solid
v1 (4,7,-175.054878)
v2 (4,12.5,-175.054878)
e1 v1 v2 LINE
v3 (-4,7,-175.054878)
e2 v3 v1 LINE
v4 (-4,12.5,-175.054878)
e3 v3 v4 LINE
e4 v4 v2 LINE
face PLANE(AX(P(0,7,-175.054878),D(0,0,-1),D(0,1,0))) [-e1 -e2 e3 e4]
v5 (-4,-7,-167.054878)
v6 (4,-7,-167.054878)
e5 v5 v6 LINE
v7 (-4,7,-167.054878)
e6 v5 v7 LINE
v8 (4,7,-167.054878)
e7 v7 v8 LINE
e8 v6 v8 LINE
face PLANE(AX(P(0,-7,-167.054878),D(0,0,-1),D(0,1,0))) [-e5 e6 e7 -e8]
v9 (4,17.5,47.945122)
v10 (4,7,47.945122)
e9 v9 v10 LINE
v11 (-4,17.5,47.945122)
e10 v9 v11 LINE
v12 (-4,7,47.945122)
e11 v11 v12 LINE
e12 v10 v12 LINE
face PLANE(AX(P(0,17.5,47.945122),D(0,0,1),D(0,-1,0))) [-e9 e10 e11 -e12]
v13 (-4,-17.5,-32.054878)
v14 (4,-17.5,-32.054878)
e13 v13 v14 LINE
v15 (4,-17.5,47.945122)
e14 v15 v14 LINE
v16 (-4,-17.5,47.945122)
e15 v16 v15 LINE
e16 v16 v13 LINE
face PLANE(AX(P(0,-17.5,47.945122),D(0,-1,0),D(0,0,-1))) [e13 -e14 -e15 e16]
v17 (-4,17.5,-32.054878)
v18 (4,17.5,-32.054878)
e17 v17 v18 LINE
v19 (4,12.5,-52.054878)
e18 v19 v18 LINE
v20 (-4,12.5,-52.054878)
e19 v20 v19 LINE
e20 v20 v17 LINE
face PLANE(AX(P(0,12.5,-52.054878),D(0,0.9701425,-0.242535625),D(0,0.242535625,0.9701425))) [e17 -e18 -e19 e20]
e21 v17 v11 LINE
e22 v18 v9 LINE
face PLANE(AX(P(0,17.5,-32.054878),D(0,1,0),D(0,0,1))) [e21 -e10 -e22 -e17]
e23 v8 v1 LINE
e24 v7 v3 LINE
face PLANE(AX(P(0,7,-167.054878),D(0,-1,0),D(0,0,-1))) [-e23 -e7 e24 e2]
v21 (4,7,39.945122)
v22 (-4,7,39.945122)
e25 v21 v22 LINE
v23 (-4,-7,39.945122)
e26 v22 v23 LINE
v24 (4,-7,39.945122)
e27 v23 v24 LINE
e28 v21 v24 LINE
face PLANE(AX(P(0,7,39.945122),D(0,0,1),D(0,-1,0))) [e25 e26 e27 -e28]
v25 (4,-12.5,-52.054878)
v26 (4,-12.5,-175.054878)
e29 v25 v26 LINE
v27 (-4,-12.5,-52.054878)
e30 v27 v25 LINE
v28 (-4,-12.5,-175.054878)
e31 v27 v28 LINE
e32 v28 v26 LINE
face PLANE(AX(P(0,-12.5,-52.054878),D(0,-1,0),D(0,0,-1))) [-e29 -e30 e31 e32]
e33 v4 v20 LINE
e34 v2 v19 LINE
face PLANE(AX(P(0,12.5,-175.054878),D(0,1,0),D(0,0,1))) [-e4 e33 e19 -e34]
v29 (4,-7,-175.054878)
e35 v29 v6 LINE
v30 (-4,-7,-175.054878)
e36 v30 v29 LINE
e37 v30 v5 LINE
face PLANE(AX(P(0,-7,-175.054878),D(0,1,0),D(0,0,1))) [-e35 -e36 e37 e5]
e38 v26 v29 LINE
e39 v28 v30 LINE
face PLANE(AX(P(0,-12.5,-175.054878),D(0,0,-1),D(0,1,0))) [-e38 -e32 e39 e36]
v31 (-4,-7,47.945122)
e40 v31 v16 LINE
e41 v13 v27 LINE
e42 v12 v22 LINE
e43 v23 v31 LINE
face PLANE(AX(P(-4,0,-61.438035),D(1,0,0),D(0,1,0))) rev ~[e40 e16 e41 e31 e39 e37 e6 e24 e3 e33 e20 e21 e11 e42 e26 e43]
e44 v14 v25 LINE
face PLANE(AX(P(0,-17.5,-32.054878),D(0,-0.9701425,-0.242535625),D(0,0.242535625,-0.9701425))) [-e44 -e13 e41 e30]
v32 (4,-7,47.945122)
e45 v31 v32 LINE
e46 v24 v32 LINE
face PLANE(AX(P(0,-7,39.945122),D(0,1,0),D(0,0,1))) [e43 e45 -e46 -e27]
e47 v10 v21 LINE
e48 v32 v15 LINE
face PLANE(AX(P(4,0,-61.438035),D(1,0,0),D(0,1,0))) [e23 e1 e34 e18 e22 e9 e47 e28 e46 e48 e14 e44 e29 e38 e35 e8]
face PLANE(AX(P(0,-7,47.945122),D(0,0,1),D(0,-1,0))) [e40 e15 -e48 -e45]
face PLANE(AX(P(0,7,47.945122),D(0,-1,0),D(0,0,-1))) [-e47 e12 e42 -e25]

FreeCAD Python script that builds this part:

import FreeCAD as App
import Part
import Sketcher

V = App.Vector


def add_polygon(sketch, points):
    """Adds a closed chain of lines whose ends are joined by coincident constraints."""
    first, n = sketch.GeometryCount, len(points)
    for a, b in zip(points, points[1:] + points[:1]):
        sketch.addGeometry(Part.LineSegment(App.Vector(*a, 0), App.Vector(*b, 0)), False)
    for i in range(n):
        sketch.addConstraint(Sketcher.Constraint("Coincident", first + i, 2, first + (i + 1) % n, 1))

doc = App.newDocument("Part")
params = doc.addObject("Spreadsheet::Sheet", "Params")
for row, (alias, value) in enumerate([
    ("sketch1_width", "14 mm"),
    ("sketch1_height", "8 mm"),
    ("sketch1_height2", "80 mm"),
    ("sketch1_height3", "123 mm"),
    ("sketch1_width2", "10.5 mm"),
    ("pad1_length", "8 mm"),
], start=1):
    params.set(f"A{row}", alias)
    params.set(f"B{row}", "=" + value)
    params.setAlias(f"B{row}", alias)

body = doc.addObject("PartDesign::Body", "Body")

# Sketch on YZ plane
sketch1 = body.newObject("Sketcher::SketchObject", "Sketch")
sketch1.AttachmentSupport = (doc.getObject("YZ_Plane"), [""])
sketch1.MapMode = "FlatFace"
add_polygon(sketch1, [(7, 40), (-7, 40), (-7, 48), (-18, 48), (-18, -32), (-12, -52), (-12, -175), (-7, -175), (-7, -167), (7, -167), (7, -175), (12, -175), (12, -52), (18, -32), (18, 48), (7, 48)])  # lines 0-15
sketch1.addConstraint([
    Sketcher.Constraint("Horizontal", 0),
    Sketcher.Constraint("Vertical", 1),
    Sketcher.Constraint("Horizontal", 2),
    Sketcher.Constraint("Vertical", 3),
    Sketcher.Constraint("Vertical", 5),
    Sketcher.Constraint("Horizontal", 6),
    Sketcher.Constraint("Vertical", 7),
    Sketcher.Constraint("Horizontal", 8),
    Sketcher.Constraint("Vertical", 9),
    Sketcher.Constraint("Horizontal", 10),
    Sketcher.Constraint("Vertical", 11),
    Sketcher.Constraint("Vertical", 13),
    Sketcher.Constraint("Horizontal", 14),
    Sketcher.Constraint("Vertical", 15),
    Sketcher.Constraint("Symmetric", 6, 2, 9, 2, -2),
    Sketcher.Constraint("Symmetric", 4, 2, 11, 2, -2),
    Sketcher.Constraint("Symmetric", 3, 2, 12, 2, -2),
    Sketcher.Constraint("Symmetric", 1, 2, 14, 2, -2),
    Sketcher.Constraint("Vertical", 1, 2, 6, 2),
    Sketcher.Constraint("Equal", 1, 7),
    Sketcher.Constraint("DistanceX", 0, 2, 0, 1, 14.0),
    Sketcher.Constraint("DistanceY", 1, 1, 1, 2, 8.0),
    Sketcher.Constraint("DistanceY", 3, 2, 3, 1, 80.0),
    Sketcher.Constraint("DistanceY", 5, 2, 5, 1, 123.0),
    Sketcher.Constraint("DistanceX", 2, 2, 2, 1, 10.5),
    Sketcher.Constraint("DistanceX", 6, 1, 6, 2, 5.5),
    Sketcher.Constraint("DistanceY", 4, 2, 3, 2, 20.0),
    Sketcher.Constraint("DistanceY", -1, 1, 0, 2, 39.945122),
])
sketch1.setExpression("Constraints[36]", "Params.sketch1_width")
sketch1.setExpression("Constraints[37]", "Params.sketch1_height")
sketch1.setExpression("Constraints[38]", "Params.sketch1_height2")
sketch1.setExpression("Constraints[39]", "Params.sketch1_height3")
sketch1.setExpression("Constraints[40]", "Params.sketch1_width2")
pad1 = body.newObject("PartDesign::Pad", "Pad")
pad1.Profile = sketch1
pad1.setExpression("Length", "Params.pad1_length")
pad1.Midplane = True

doc.recompute()
